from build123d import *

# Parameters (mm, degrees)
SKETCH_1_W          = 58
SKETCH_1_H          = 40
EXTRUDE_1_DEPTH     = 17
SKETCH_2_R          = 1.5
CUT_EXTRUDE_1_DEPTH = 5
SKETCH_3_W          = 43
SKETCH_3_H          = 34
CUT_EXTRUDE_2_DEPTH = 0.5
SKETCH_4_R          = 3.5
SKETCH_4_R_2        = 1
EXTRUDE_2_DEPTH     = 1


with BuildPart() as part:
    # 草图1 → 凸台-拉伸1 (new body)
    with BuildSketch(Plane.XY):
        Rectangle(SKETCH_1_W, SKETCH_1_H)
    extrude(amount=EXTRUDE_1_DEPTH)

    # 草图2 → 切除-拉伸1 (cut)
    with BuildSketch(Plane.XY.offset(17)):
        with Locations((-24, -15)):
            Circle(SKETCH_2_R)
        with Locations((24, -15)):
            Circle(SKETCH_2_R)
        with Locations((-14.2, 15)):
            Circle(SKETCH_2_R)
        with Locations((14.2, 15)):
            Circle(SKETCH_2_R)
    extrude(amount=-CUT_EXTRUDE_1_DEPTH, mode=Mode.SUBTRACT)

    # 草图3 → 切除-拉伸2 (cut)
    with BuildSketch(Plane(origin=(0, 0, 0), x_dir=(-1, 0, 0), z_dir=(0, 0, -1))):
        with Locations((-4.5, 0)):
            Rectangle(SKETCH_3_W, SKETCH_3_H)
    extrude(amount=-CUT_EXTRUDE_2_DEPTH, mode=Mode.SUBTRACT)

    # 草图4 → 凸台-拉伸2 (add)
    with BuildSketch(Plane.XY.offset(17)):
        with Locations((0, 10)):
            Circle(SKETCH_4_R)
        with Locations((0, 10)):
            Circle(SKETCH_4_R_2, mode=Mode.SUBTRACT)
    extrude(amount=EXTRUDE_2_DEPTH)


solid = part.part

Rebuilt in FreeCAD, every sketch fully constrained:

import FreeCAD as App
import Part
import Sketcher
from FreeCAD import Vector
Q = App.Units.Quantity

doc = App.newDocument("Part")
body = doc.addObject("PartDesign::Body", "Body")

sketch1 = doc.addObject("Sketcher::SketchObject", "Sketch")
body.addObject(sketch1)
sketch1.AttachmentSupport = (doc.XY_Plane, [""])
sketch1.MapMode = "FlatFace"
sketch1.addGeometry(Part.LineSegment(Vector(-29, 20, 0), Vector(-29, -20, 0)), False)
sketch1.addGeometry(Part.LineSegment(Vector(-29, -20, 0), Vector(29, -20, 0)), False)
sketch1.addGeometry(Part.LineSegment(Vector(29, -20, 0), Vector(29, 20, 0)), False)
sketch1.addGeometry(Part.LineSegment(Vector(29, 20, 0), Vector(-29, 20, 0)), False)
sketch1.addConstraint(Sketcher.Constraint("Coincident", 0, 2, 1, 1))
sketch1.addConstraint(Sketcher.Constraint("Coincident", 1, 2, 2, 1))
sketch1.addConstraint(Sketcher.Constraint("Coincident", 2, 2, 3, 1))
sketch1.addConstraint(Sketcher.Constraint("Coincident", 3, 2, 0, 1))
sketch1.addConstraint(Sketcher.Constraint("Vertical", 0))
sketch1.addConstraint(Sketcher.Constraint("Horizontal", 1))
sketch1.addConstraint(Sketcher.Constraint("Vertical", 2))
sketch1.addConstraint(Sketcher.Constraint("Horizontal", 3))
sketch1.addConstraint(Sketcher.Constraint("Symmetric", 0, 2, 2, 2, -1, 1))
sketch1.addConstraint(Sketcher.Constraint("DistanceX", 1, 1, 1, 2, Q("58 mm")))
sketch1.addConstraint(Sketcher.Constraint("DistanceY", 0, 2, 0, 1, Q("40 mm")))
pad1 = doc.addObject("PartDesign::Pad", "Pad")
body.addObject(pad1)
pad1.Profile = sketch1
pad1.Length = 17

sketch2 = doc.addObject("Sketcher::SketchObject", "Sketch001")
body.addObject(sketch2)
sketch2.AttachmentSupport = (doc.XY_Plane, [""])
sketch2.MapMode = "FlatFace"
sketch2.AttachmentOffset = App.Placement(Vector(0, 0, 17), App.Rotation())
sketch2.addGeometry(Part.Circle(Vector(-24, -15, 0), Vector(0, 0, 1), 1.5), False)
sketch2.addGeometry(Part.Circle(Vector(24, -15, 0), Vector(0, 0, 1), 1.5), False)
sketch2.addGeometry(Part.Circle(Vector(-14.2, 15, 0), Vector(0, 0, 1), 1.5), False)
sketch2.addGeometry(Part.Circle(Vector(14.2, 15, 0), Vector(0, 0, 1), 1.5), False)
sketch2.addConstraint(Sketcher.Constraint("Equal", 0, 1))
sketch2.addConstraint(Sketcher.Constraint("Equal", 1, 2))
sketch2.addConstraint(Sketcher.Constraint("Equal", 2, 3))
sketch2.addConstraint(Sketcher.Constraint("Symmetric", 0, 3, 1, 3, -2))
sketch2.addConstraint(Sketcher.Constraint("Symmetric", 2, 3, 3, 3, -2))
sketch2.addConstraint(Sketcher.Constraint("Diameter", 0, Q("3 mm")))
sketch2.addConstraint(Sketcher.Constraint("DistanceX", 0, 3, -1, 1, Q("24 mm")))
sketch2.addConstraint(Sketcher.Constraint("DistanceY", 0, 3, -1, 1, Q("15 mm")))
sketch2.addConstraint(Sketcher.Constraint("DistanceY", -1, 1, 2, 3, Q("15 mm")))
sketch2.addConstraint(Sketcher.Constraint("DistanceX", 2, 3, -1, 1, Q("14.2 mm")))
pocket1 = doc.addObject("PartDesign::Pocket", "Pocket")
body.addObject(pocket1)
pocket1.Profile = sketch2
pocket1.Length = 5

sketch3 = doc.addObject("Sketcher::SketchObject", "Sketch002")
body.addObject(sketch3)
sketch3.AttachmentSupport = (doc.XY_Plane, [""])
sketch3.MapMode = "FlatFace"
sketch3.addGeometry(Part.LineSegment(Vector(26, 17, 0), Vector(26, -17, 0)), False)
sketch3.addGeometry(Part.LineSegment(Vector(26, -17, 0), Vector(-17, -17, 0)), False)
sketch3.addGeometry(Part.LineSegment(Vector(-17, -17, 0), Vector(-17, 17, 0)), False)
sketch3.addGeometry(Part.LineSegment(Vector(-17, 17, 0), Vector(26, 17, 0)), False)
sketch3.addConstraint(Sketcher.Constraint("Coincident", 0, 2, 1, 1))
sketch3.addConstraint(Sketcher.Constraint("Coincident", 1, 2, 2, 1))
sketch3.addConstraint(Sketcher.Constraint("Coincident", 2, 2, 3, 1))
sketch3.addConstraint(Sketcher.Constraint("Coincident", 3, 2, 0, 1))
sketch3.addConstraint(Sketcher.Constraint("Vertical", 0))
sketch3.addConstraint(Sketcher.Constraint("Horizontal", 1))
sketch3.addConstraint(Sketcher.Constraint("Vertical", 2))
sketch3.addConstraint(Sketcher.Constraint("Horizontal", 3))
sketch3.addConstraint(Sketcher.Constraint("DistanceX", 1, 2, 1, 1, Q("43 mm")))
sketch3.addConstraint(Sketcher.Constraint("DistanceY", 0, 2, 0, 1, Q("34 mm")))
sketch3.addConstraint(Sketcher.Constraint("DistanceX", -1, 1, 0, 2, Q("26 mm")))
sketch3.addConstraint(Sketcher.Constraint("DistanceY", 0, 2, -1, 1, Q("17 mm")))
pocket2 = doc.addObject("PartDesign::Pocket", "Pocket001")
body.addObject(pocket2)
pocket2.Profile = sketch3
pocket2.Length = 0.5
pocket2.Reversed = True

sketch4 = doc.addObject("Sketcher::SketchObject", "Sketch003")
body.addObject(sketch4)
sketch4.AttachmentSupport = (doc.XY_Plane, [""])
sketch4.MapMode = "FlatFace"
sketch4.AttachmentOffset = App.Placement(Vector(0, 0, 17), App.Rotation())
sketch4.addGeometry(Part.Circle(Vector(0, 10, 0), Vector(0, 0, 1), 3.5), False)
sketch4.addGeometry(Part.Circle(Vector(0, 10, 0), Vector(0, 0, 1), 1), False)
sketch4.addConstraint(Sketcher.Constraint("Coincident", 1, 3, 0, 3))
sketch4.addConstraint(Sketcher.Constraint("PointOnObject", 0, 3, -2))
sketch4.addConstraint(Sketcher.Constraint("Diameter", 0, Q("7 mm")))
sketch4.addConstraint(Sketcher.Constraint("Diameter", 1, Q("2 mm")))
sketch4.addConstraint(Sketcher.Constraint("DistanceY", -1, 1, 0, 3, Q("10 mm")))
pad2 = doc.addObject("PartDesign::Pad", "Pad001")
body.addObject(pad2)
pad2.Profile = sketch4
pad2.Length = 1

doc.recompute()
